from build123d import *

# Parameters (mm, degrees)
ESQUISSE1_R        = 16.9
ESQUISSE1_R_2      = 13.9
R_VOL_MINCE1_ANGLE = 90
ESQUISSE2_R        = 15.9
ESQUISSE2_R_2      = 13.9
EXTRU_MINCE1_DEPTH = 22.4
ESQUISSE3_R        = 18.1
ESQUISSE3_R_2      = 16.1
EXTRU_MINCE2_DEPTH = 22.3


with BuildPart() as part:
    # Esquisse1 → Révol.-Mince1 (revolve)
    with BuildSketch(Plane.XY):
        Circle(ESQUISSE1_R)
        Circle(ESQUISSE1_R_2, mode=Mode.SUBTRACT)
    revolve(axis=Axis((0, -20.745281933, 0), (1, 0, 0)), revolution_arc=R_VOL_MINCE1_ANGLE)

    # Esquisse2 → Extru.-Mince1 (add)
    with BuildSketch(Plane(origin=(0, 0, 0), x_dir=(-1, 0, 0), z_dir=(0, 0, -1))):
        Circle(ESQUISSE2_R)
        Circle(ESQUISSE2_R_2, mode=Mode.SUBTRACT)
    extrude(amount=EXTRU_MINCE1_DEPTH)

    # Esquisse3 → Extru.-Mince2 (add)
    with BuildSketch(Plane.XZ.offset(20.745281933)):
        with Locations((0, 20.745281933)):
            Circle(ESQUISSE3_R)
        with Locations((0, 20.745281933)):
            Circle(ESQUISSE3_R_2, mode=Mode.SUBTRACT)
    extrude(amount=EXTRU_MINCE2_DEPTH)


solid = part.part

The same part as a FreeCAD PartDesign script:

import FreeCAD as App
import Part
import Sketcher

V = App.Vector

doc = App.newDocument("Part")
body = doc.addObject("PartDesign::Body", "Body")

sketch1 = doc.addObject("Sketcher::SketchObject", "Sketch")
body.addObject(sketch1)
sketch1.AttachmentSupport = (doc.XY_Plane, [""])
sketch1.MapMode = "FlatFace"
sketch1.addGeometry([
    Part.Circle(V(0, 0, 0), V(0, 0, 1), 16.9),
    Part.Circle(V(0, 0, 0), V(0, 0, 1), 13.9),
], False)
sketch1.addGeometry(Part.LineSegment(V(0, -20.745282, 0), V(10, -20.745282, 0)), True)
sketch1.addConstraint([
    Sketcher.Constraint("Horizontal", 2),
    Sketcher.Constraint("Coincident", 0, 3, -1, 1),
    Sketcher.Constraint("Coincident", 1, 3, -1, 1),
    Sketcher.Constraint("PointOnObject", 2, 1, -2),
    Sketcher.Constraint("Diameter", 0, 33.8),
    Sketcher.Constraint("Diameter", 1, 27.8),
    Sketcher.Constraint("DistanceX", 2, 1, 2, 2, 10.0),
    Sketcher.Constraint("DistanceY", 2, 1, -1, 1, 20.745282),
])
revolution = doc.addObject("PartDesign::Revolution", "Revolution")
body.addObject(revolution)
revolution.Profile = sketch1
revolution.ReferenceAxis = (sketch1, ["Axis0"])
revolution.Angle = 90

sketch2 = doc.addObject("Sketcher::SketchObject", "Sketch001")
body.addObject(sketch2)
sketch2.AttachmentSupport = (doc.XY_Plane, [""])
sketch2.MapMode = "FlatFace"
sketch2.addGeometry([
    Part.Circle(V(0, 0, 0), V(0, 0, 1), 15.9),
    Part.Circle(V(0, 0, 0), V(0, 0, 1), 13.9),
], False)
sketch2.addConstraint([
    Sketcher.Constraint("Coincident", 0, 3, -1, 1),
    Sketcher.Constraint("Coincident", 1, 3, -1, 1),
    Sketcher.Constraint("Diameter", 0, 31.8),
    Sketcher.Constraint("Diameter", 1, 27.8),
])
pad1 = doc.addObject("PartDesign::Pad", "Pad")
body.addObject(pad1)
pad1.Profile = sketch2
pad1.Length = 22.4
pad1.Reversed = True

sketch3 = doc.addObject("Sketcher::SketchObject", "Sketch002")
body.addObject(sketch3)
sketch3.AttachmentSupport = (doc.XZ_Plane, [""])
sketch3.MapMode = "FlatFace"
sketch3.AttachmentOffset = App.Placement(V(0, 0, 20.745282), App.Rotation())
sketch3.addGeometry([
    Part.Circle(V(0, 20.745282, 0), V(0, 0, 1), 18.1),
    Part.Circle(V(0, 20.745282, 0), V(0, 0, 1), 16.1),
], False)
sketch3.addConstraint([
    Sketcher.Constraint("Coincident", 1, 3, 0, 3),
    Sketcher.Constraint("PointOnObject", 0, 3, -2),
    Sketcher.Constraint("Diameter", 0, 36.2),
    Sketcher.Constraint("Diameter", 1, 32.2),
    Sketcher.Constraint("DistanceY", -1, 1, 0, 3, 20.745282),
])
pad2 = doc.addObject("PartDesign::Pad", "Pad001")
body.addObject(pad2)
pad2.Profile = sketch3
pad2.Length = 22.3

doc.recompute()
